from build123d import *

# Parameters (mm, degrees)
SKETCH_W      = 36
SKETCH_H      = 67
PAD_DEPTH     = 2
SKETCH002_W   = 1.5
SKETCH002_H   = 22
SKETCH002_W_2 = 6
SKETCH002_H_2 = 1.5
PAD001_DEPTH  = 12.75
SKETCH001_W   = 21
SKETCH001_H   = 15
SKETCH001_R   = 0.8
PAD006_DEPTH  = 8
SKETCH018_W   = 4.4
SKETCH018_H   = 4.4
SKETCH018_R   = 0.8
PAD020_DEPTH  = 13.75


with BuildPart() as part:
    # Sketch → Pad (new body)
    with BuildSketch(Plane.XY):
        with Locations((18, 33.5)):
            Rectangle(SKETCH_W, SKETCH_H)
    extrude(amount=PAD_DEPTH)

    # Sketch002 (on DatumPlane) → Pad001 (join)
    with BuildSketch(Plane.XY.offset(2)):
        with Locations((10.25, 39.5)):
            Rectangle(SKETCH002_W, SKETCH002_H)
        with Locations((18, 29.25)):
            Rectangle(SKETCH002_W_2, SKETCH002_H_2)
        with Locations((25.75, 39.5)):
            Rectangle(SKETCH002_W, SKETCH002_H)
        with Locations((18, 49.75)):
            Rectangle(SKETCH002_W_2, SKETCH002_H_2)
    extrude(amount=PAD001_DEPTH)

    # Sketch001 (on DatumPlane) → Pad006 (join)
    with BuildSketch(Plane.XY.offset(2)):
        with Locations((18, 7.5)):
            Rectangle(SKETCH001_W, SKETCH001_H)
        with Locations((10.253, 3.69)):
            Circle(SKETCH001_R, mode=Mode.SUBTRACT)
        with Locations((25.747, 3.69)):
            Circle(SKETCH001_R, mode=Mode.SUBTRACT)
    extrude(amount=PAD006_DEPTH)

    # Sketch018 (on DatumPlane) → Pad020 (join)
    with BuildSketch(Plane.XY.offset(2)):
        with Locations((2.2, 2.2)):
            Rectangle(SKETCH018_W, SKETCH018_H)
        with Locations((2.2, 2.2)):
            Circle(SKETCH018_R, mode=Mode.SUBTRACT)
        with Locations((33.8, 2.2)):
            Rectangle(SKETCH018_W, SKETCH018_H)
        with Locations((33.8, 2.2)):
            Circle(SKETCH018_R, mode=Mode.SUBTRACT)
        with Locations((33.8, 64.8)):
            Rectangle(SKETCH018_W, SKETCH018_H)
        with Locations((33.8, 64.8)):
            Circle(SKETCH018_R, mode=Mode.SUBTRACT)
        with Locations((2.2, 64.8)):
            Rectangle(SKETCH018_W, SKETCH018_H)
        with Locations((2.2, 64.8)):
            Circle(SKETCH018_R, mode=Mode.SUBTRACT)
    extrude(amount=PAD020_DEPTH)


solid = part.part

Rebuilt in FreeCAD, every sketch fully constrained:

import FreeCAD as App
import Part
import Sketcher
from FreeCAD import Vector


def add_polygon(sketch, points):
    """Adds a closed chain of lines whose ends are joined by coincident constraints."""
    first, n = sketch.GeometryCount, len(points)
    for a, b in zip(points, points[1:] + points[:1]):
        sketch.addGeometry(Part.LineSegment(App.Vector(*a, 0), App.Vector(*b, 0)), False)
    for i in range(n):
        sketch.addConstraint(Sketcher.Constraint("Coincident", first + i, 2, first + (i + 1) % n, 1))

doc = App.newDocument("Part")
body = doc.addObject("PartDesign::Body", "Body")

sketch1 = doc.addObject("Sketcher::SketchObject", "Sketch")
body.addObject(sketch1)
sketch1.AttachmentSupport = (doc.XY_Plane, [""])
sketch1.MapMode = "FlatFace"
add_polygon(sketch1, [(0, 67), (0, 0), (36, 0), (36, 67)])
sketch1.addConstraint([
    Sketcher.Constraint("Vertical", 0),
    Sketcher.Constraint("Horizontal", 1),
    Sketcher.Constraint("Vertical", 2),
    Sketcher.Constraint("Horizontal", 3),
    Sketcher.Constraint("Coincident", 0, 2, -1, 1),
    Sketcher.Constraint("DistanceX", 1, 1, 1, 2, 36.0),
    Sketcher.Constraint("DistanceY", 0, 2, 0, 1, 67.0),
])
pad1 = doc.addObject("PartDesign::Pad", "Pad")
body.addObject(pad1)
pad1.Profile = sketch1
pad1.Length = 2

sketch2 = doc.addObject("Sketcher::SketchObject", "Sketch001")
body.addObject(sketch2)
sketch2.AttachmentSupport = (doc.XY_Plane, [""])
sketch2.MapMode = "FlatFace"
sketch2.AttachmentOffset = App.Placement(Vector(0, 0, 2), App.Rotation())
add_polygon(sketch2, [(9.5, 50.5), (9.5, 28.5), (11, 28.5), (11, 50.5)])
add_polygon(sketch2, [(15, 30), (15, 28.5), (21, 28.5), (21, 30)])
add_polygon(sketch2, [(25, 50.5), (25, 28.5), (26.5, 28.5), (26.5, 50.5)])
add_polygon(sketch2, [(15, 50.5), (15, 49), (21, 49), (21, 50.5)])
sketch2.addConstraint([
    Sketcher.Constraint("Vertical", 0),
    Sketcher.Constraint("Horizontal", 1),
    Sketcher.Constraint("Vertical", 2),
    Sketcher.Constraint("Horizontal", 3),
    Sketcher.Constraint("Vertical", 4),
    Sketcher.Constraint("Horizontal", 5),
    Sketcher.Constraint("Vertical", 6),
    Sketcher.Constraint("Horizontal", 7),
    Sketcher.Constraint("Vertical", 8),
    Sketcher.Constraint("Horizontal", 9),
    Sketcher.Constraint("Vertical", 10),
    Sketcher.Constraint("Horizontal", 11),
    Sketcher.Constraint("Vertical", 12),
    Sketcher.Constraint("Horizontal", 13),
    Sketcher.Constraint("Vertical", 14),
    Sketcher.Constraint("Horizontal", 15),
    Sketcher.Constraint("Horizontal", 1, 2, 4, 2),
    Sketcher.Constraint("Horizontal", 5, 2, 8, 2),
    Sketcher.Constraint("Horizontal", 3, 2, 10, 2),
    Sketcher.Constraint("Horizontal", 11, 2, 14, 2),
    Sketcher.Constraint("Vertical", 7, 2, 12, 2),
    Sketcher.Constraint("Vertical", 6, 2, 13, 2),
    Sketcher.Constraint("Equal", 3, 9),
    Sketcher.Constraint("Equal", 11, 4),
    Sketcher.Constraint("Equal", 6, 12),
    Sketcher.Constraint("DistanceX", 5, 1, 5, 2, 6.0),
    Sketcher.Constraint("DistanceY", 0, 2, 0, 1, 22.0),
    Sketcher.Constraint("DistanceX", 1, 1, 1, 2, 1.5),
    Sketcher.Constraint("DistanceX", -1, 1, 1, 2, 11.0),
    Sketcher.Constraint("DistanceX", -1, 1, 4, 2, 15.0),
    Sketcher.Constraint("DistanceY", -1, 1, 6, 2, 30.0),
    Sketcher.Constraint("DistanceX", -1, 1, 8, 2, 25.0),
])
pad2 = doc.addObject("PartDesign::Pad", "Pad001")
body.addObject(pad2)
pad2.Profile = sketch2
pad2.Length = 12.75

sketch3 = doc.addObject("Sketcher::SketchObject", "Sketch002")
body.addObject(sketch3)
sketch3.AttachmentSupport = (doc.XY_Plane, [""])
sketch3.MapMode = "FlatFace"
sketch3.AttachmentOffset = App.Placement(Vector(0, 0, 2), App.Rotation())
add_polygon(sketch3, [(7.5, 15), (7.5, 0), (28.5, 0), (28.5, 15)])
sketch3.addGeometry(Part.Circle(Vector(25.747, 3.69, 0), Vector(0, 0, 1), 0.8), False)
sketch3.addGeometry(Part.Circle(Vector(10.253, 3.69, 0), Vector(0, 0, 1), 0.8), False)
sketch3.addConstraint([
    Sketcher.Constraint("Vertical", 0),
    Sketcher.Constraint("Horizontal", 1),
    Sketcher.Constraint("Vertical", 2),
    Sketcher.Constraint("Horizontal", 3),
    Sketcher.Constraint("Equal", 4, 5),
    Sketcher.Constraint("PointOnObject", 0, 2, -1),
    Sketcher.Constraint("Horizontal", 4, 3, 5, 3),
    Sketcher.Constraint("Diameter", 4, 1.6),
    Sketcher.Constraint("DistanceX", 1, 1, 1, 2, 21.0),
    Sketcher.Constraint("DistanceY", 0, 2, 0, 1, 15.0),
    Sketcher.Constraint("DistanceX", -1, 1, 0, 2, 7.5),
    Sketcher.Constraint("DistanceY", -1, 1, 4, 3, 3.69),
    Sketcher.Constraint("DistanceX", -1, 1, 4, 3, 25.747),
    Sketcher.Constraint("DistanceX", -1, 1, 5, 3, 10.253),
])
pad3 = doc.addObject("PartDesign::Pad", "Pad002")
body.addObject(pad3)
pad3.Profile = sketch3
pad3.Length = 8

sketch4 = doc.addObject("Sketcher::SketchObject", "Sketch003")
body.addObject(sketch4)
sketch4.AttachmentSupport = (doc.XY_Plane, [""])
sketch4.MapMode = "FlatFace"
sketch4.AttachmentOffset = App.Placement(Vector(0, 0, 2), App.Rotation())
add_polygon(sketch4, [(0, 4.4), (0, 0), (4.4, 0), (4.4, 4.4)])
sketch4.addGeometry(Part.Circle(Vector(2.2, 2.2, 0), Vector(0, 0, 1), 0.8), False)
add_polygon(sketch4, [(31.6, 4.4), (31.6, 0), (36, 0), (36, 4.4)])
sketch4.addGeometry(Part.Circle(Vector(33.8, 2.2, 0), Vector(0, 0, 1), 0.8), False)
add_polygon(sketch4, [(31.6, 67), (31.6, 62.6), (36, 62.6), (36, 67)])
sketch4.addGeometry(Part.Circle(Vector(33.8, 64.8, 0), Vector(0, 0, 1), 0.8), False)
add_polygon(sketch4, [(0, 67), (0, 62.6), (4.4, 62.6), (4.4, 67)])
sketch4.addGeometry(Part.Circle(Vector(2.2, 64.8, 0), Vector(0, 0, 1), 0.8), False)
sketch4.addConstraint([
    Sketcher.Constraint("Vertical", 0),
    Sketcher.Constraint("Horizontal", 1),
    Sketcher.Constraint("Vertical", 2),
    Sketcher.Constraint("Horizontal", 3),
    Sketcher.Constraint("Vertical", 5),
    Sketcher.Constraint("Horizontal", 6),
    Sketcher.Constraint("Vertical", 7),
    Sketcher.Constraint("Horizontal", 8),
    Sketcher.Constraint("Vertical", 10),
    Sketcher.Constraint("Horizontal", 11),
    Sketcher.Constraint("Vertical", 12),
    Sketcher.Constraint("Horizontal", 13),
    Sketcher.Constraint("Vertical", 15),
    Sketcher.Constraint("Horizontal", 16),
    Sketcher.Constraint("Vertical", 17),
    Sketcher.Constraint("Horizontal", 18),
    Sketcher.Constraint("Coincident", 0, 2, -1, 1),
    Sketcher.Constraint("Equal", 4, 9),
    Sketcher.Constraint("Equal", 9, 14),
    Sketcher.Constraint("Equal", 14, 19),
    Sketcher.Constraint("PointOnObject", 5, 2, -1),
    Sketcher.Constraint("PointOnObject", 15, 2, -2),
    Sketcher.Constraint("Horizontal", 4, 3, 9, 3),
    Sketcher.Constraint("Horizontal", 14, 3, 19, 3),
    Sketcher.Constraint("Horizontal", 3, 2, 7, 2),
    Sketcher.Constraint("Horizontal", 11, 2, 15, 2),
    Sketcher.Constraint("Horizontal", 13, 2, 17, 2),
    Sketcher.Constraint("Vertical", 9, 3, 14, 3),
    Sketcher.Constraint("Vertical", 4, 3, 19, 3),
    Sketcher.Constraint("Vertical", 8, 2, 10, 2),
    Sketcher.Constraint("Vertical", 7, 2, 11, 2),
    Sketcher.Constraint("Vertical", 2, 2, 16, 2),
    Sketcher.Constraint("Equal", 3, 6),
    Sketcher.Constraint("Equal", 18, 0),
    Sketcher.Constraint("Equal", 7, 10),
    Sketcher.Constraint("Diameter", 4, 1.6),
    Sketcher.Constraint("DistanceX", 1, 1, 1, 2, 4.4),
    Sketcher.Constraint("DistanceX", -1, 1, 6, 2, 36.0),
    Sketcher.Constraint("DistanceY", -1, 1, 12, 2, 67.0),
    Sketcher.Constraint("DistanceX", -1, 1, 4, 3, 2.2),
    Sketcher.Constraint("DistanceY", -1, 1, 4, 3, 2.2),
    Sketcher.Constraint("DistanceX", -1, 1, 9, 3, 33.8),
    Sketcher.Constraint("DistanceY", -1, 1, 14, 3, 64.8),
])
pad4 = doc.addObject("PartDesign::Pad", "Pad003")
body.addObject(pad4)
pad4.Profile = sketch4
pad4.Length = 13.75

doc.recompute()
